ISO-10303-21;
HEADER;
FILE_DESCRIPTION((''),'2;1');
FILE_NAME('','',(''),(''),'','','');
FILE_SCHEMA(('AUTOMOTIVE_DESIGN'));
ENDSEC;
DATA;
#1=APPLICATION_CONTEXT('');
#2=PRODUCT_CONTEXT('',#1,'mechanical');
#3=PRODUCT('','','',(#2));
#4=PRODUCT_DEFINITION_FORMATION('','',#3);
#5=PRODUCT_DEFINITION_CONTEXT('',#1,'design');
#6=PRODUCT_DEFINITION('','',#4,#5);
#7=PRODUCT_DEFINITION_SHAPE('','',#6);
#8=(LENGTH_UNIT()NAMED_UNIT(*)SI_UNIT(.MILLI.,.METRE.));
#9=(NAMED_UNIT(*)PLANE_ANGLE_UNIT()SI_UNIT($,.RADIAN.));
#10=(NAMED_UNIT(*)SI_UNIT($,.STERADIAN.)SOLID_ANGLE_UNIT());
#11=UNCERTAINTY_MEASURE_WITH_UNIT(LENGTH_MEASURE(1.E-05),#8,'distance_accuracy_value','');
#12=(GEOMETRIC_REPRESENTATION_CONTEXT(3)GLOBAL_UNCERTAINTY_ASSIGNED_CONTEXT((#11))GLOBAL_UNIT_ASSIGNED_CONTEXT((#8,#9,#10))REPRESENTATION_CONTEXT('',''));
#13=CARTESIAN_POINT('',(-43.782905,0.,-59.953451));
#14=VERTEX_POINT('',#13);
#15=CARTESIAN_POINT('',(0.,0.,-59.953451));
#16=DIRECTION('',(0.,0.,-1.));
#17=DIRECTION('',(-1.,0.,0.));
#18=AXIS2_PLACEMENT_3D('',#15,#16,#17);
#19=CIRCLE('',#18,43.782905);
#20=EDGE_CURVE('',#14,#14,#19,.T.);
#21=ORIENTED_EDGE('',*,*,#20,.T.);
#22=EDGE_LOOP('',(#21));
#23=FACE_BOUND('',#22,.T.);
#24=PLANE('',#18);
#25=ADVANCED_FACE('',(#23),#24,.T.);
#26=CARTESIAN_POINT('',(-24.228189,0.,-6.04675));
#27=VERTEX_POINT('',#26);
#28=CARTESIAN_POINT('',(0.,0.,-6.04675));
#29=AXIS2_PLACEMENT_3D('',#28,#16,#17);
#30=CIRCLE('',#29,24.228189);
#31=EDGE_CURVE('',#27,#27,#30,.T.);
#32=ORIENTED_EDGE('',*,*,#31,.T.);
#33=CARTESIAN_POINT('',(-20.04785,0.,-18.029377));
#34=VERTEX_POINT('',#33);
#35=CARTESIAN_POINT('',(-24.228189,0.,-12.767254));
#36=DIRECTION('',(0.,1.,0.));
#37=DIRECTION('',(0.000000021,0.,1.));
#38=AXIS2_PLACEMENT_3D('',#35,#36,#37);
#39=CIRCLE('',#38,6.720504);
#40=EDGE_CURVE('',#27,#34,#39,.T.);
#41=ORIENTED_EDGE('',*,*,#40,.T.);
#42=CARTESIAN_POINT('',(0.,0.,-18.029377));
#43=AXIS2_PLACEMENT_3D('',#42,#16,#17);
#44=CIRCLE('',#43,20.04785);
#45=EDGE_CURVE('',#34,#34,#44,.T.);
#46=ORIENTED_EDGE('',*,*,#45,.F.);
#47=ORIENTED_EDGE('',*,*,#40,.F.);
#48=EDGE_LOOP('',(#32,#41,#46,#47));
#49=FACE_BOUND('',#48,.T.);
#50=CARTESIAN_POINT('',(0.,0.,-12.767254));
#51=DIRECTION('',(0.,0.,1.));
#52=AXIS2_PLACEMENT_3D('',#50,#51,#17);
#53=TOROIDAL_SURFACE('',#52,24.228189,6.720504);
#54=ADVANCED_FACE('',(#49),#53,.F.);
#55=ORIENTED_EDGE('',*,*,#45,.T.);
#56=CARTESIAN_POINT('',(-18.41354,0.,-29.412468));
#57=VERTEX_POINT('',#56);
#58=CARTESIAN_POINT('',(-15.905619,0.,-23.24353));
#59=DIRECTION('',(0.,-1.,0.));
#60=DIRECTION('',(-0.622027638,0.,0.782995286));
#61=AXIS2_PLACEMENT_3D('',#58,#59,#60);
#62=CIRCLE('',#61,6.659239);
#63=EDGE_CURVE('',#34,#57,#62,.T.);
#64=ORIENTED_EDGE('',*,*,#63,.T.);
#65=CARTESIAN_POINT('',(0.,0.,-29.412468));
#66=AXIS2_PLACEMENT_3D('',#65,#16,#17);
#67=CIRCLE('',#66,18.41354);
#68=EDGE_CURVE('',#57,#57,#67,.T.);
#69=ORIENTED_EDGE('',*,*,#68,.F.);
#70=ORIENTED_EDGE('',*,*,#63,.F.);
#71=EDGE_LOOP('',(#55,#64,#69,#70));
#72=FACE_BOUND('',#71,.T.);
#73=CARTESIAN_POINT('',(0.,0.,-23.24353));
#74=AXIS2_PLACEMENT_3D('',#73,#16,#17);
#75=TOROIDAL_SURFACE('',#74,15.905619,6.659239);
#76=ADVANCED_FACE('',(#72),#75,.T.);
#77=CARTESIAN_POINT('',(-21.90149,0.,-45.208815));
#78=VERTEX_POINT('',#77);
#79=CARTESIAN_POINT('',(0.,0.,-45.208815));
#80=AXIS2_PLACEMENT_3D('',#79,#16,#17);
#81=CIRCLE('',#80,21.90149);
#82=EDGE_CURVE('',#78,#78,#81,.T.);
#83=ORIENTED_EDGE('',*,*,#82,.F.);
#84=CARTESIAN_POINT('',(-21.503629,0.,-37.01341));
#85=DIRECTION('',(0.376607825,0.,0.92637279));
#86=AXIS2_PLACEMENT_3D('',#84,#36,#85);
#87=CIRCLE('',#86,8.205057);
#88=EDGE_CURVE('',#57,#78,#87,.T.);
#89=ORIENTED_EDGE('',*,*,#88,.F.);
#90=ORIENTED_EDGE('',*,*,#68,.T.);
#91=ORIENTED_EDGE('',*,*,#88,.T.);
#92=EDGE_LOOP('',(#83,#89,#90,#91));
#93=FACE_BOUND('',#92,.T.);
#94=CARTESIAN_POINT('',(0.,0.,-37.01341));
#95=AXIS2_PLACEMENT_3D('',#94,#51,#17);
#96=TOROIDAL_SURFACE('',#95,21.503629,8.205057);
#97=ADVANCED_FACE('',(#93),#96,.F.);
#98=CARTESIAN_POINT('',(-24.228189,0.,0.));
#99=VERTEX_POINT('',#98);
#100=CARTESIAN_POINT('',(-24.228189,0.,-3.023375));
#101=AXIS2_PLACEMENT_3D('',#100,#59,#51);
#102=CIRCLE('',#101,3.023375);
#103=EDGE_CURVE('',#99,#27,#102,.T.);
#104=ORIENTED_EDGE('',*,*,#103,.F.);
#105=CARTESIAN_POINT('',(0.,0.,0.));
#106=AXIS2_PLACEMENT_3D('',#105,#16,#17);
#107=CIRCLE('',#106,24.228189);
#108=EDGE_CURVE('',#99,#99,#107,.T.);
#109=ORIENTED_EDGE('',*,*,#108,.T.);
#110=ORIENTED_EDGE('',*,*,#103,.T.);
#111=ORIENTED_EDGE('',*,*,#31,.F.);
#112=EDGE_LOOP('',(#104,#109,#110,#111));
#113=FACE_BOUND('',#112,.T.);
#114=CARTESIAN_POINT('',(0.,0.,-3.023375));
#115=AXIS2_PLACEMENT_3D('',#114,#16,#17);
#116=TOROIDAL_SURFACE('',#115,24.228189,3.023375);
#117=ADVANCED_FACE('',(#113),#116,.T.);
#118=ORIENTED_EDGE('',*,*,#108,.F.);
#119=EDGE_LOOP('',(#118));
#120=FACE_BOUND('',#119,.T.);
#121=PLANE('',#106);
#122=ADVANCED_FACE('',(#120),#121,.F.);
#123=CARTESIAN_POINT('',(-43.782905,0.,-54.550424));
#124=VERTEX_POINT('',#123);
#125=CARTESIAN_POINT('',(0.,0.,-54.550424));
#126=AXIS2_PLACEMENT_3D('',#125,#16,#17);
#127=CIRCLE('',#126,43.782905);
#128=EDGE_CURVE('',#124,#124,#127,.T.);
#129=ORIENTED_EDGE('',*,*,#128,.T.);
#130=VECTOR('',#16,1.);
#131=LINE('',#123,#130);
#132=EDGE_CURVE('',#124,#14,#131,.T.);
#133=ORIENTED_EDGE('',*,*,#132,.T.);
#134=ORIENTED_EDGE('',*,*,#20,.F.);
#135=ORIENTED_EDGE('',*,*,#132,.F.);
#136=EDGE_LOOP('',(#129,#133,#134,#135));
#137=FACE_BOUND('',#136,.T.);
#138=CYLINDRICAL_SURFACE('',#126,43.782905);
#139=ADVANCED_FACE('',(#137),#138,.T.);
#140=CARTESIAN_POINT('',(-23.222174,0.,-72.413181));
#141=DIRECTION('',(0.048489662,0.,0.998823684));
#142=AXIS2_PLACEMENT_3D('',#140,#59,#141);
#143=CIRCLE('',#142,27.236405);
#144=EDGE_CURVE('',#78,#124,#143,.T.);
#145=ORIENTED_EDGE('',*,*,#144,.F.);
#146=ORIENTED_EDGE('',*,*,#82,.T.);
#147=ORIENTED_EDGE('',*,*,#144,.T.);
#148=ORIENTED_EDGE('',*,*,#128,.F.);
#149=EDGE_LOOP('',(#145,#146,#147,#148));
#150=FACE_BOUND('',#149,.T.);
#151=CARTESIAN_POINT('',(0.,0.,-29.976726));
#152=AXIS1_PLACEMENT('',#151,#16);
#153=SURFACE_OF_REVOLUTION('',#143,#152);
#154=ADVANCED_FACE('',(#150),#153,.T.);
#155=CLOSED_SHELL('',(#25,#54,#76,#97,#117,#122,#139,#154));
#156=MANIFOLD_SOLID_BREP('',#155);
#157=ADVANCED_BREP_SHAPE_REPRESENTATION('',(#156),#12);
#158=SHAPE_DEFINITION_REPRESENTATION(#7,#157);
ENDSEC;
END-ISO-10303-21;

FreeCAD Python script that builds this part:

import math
import FreeCAD as App
import Part
import Sketcher

doc = App.newDocument("Part")
body = doc.addObject("PartDesign::Body", "Body")

# Sketch on XZ plane
sketch1 = body.newObject("Sketcher::SketchObject", "Sketch")
sketch1.AttachmentSupport = (doc.getObject("XZ_Plane"), [""])
sketch1.MapMode = "FlatFace"
sketch1.addGeometry([
    Part.LineSegment(App.Vector(0, 0, 0), App.Vector(-24.2, 0, 0)),  # 0
    Part.ArcOfCircle(Part.Circle(App.Vector(-24.2, -3, 0), App.Vector(0, 0, 1), 3), math.radians(90), math.radians(270)),  # 1
    Part.ArcOfCircle(Part.Circle(App.Vector(-24.2, -12.8, 0), App.Vector(0, 0, 1), 6.7), math.radians(-52), math.radians(90)),  # 2
    Part.ArcOfCircle(Part.Circle(App.Vector(-15.9, -23.2, 0), App.Vector(0, 0, 1), 6.7), math.radians(128), math.radians(248)),  # 3
    Part.ArcOfCircle(Part.Circle(App.Vector(-21.5, -37, 0), App.Vector(0, 0, 1), 8.2), math.radians(-93), math.radians(68)),  # 4
    Part.ArcOfCircle(Part.Circle(App.Vector(-23.2, -72.4, 0), App.Vector(0, 0, 1), 27.2), math.radians(87), math.radians(139)),  # 5
    Part.LineSegment(App.Vector(-43.8, -54.6, 0), App.Vector(-43.8, -60, 0)),  # 6
    Part.LineSegment(App.Vector(-43.8, -60, 0), App.Vector(0, -60, 0)),  # 7
    Part.LineSegment(App.Vector(0, -60, 0), App.Vector(0, 0, 0)),  # 8
], False)
sketch1.addConstraint([
    Sketcher.Constraint("Tangent", 0, 2, 1, 1),
    Sketcher.Constraint("Tangent", 1, 2, 2, 2),
    Sketcher.Constraint("Tangent", 2, 1, 3, 1),
    Sketcher.Constraint("Tangent", 3, 2, 4, 2),
    Sketcher.Constraint("Tangent", 4, 1, 5, 1),
    Sketcher.Constraint("Coincident", 5, 2, 6, 1),
    Sketcher.Constraint("Coincident", 6, 2, 7, 1),
    Sketcher.Constraint("Coincident", 7, 2, 8, 1),
    Sketcher.Constraint("Coincident", 8, 2, 0, 1),
    Sketcher.Constraint("Horizontal", 0),
    Sketcher.Constraint("Vertical", 6),
    Sketcher.Constraint("Horizontal", 7),
    Sketcher.Constraint("Vertical", 8),
    Sketcher.Constraint("Coincident", 8, 2, -1, 1),
    Sketcher.Constraint("Vertical", 1, 3, 2, 3),
    Sketcher.Constraint("Radius", 3, 6.659239),
    Sketcher.Constraint("Radius", 1, 3.023375),
    Sketcher.Constraint("Radius", 2, 6.720504),
    Sketcher.Constraint("Radius", 4, 8.205057),
    Sketcher.Constraint("Radius", 5, 27.236405),
    Sketcher.Constraint("DistanceY", 2, 1, 1, 3, 15.006002),
    Sketcher.Constraint("DistanceX", 0, 2, 0, 1, 24.228189),
    Sketcher.Constraint("DistanceY", 8, 1, 8, 2, 59.953451),
    Sketcher.Constraint("DistanceX", 7, 1, 7, 2, 43.782905),
    Sketcher.Constraint("DistanceY", 6, 2, 6, 1, 5.403027),
    Sketcher.Constraint("DistanceX", 4, 3, -1, 1, 21.503629),
])
revolution = body.newObject("PartDesign::Revolution", "Revolution")
revolution.Profile = sketch1
revolution.ReferenceAxis = (sketch1, ["V_Axis"])
revolution.Angle = 360

doc.recompute()
